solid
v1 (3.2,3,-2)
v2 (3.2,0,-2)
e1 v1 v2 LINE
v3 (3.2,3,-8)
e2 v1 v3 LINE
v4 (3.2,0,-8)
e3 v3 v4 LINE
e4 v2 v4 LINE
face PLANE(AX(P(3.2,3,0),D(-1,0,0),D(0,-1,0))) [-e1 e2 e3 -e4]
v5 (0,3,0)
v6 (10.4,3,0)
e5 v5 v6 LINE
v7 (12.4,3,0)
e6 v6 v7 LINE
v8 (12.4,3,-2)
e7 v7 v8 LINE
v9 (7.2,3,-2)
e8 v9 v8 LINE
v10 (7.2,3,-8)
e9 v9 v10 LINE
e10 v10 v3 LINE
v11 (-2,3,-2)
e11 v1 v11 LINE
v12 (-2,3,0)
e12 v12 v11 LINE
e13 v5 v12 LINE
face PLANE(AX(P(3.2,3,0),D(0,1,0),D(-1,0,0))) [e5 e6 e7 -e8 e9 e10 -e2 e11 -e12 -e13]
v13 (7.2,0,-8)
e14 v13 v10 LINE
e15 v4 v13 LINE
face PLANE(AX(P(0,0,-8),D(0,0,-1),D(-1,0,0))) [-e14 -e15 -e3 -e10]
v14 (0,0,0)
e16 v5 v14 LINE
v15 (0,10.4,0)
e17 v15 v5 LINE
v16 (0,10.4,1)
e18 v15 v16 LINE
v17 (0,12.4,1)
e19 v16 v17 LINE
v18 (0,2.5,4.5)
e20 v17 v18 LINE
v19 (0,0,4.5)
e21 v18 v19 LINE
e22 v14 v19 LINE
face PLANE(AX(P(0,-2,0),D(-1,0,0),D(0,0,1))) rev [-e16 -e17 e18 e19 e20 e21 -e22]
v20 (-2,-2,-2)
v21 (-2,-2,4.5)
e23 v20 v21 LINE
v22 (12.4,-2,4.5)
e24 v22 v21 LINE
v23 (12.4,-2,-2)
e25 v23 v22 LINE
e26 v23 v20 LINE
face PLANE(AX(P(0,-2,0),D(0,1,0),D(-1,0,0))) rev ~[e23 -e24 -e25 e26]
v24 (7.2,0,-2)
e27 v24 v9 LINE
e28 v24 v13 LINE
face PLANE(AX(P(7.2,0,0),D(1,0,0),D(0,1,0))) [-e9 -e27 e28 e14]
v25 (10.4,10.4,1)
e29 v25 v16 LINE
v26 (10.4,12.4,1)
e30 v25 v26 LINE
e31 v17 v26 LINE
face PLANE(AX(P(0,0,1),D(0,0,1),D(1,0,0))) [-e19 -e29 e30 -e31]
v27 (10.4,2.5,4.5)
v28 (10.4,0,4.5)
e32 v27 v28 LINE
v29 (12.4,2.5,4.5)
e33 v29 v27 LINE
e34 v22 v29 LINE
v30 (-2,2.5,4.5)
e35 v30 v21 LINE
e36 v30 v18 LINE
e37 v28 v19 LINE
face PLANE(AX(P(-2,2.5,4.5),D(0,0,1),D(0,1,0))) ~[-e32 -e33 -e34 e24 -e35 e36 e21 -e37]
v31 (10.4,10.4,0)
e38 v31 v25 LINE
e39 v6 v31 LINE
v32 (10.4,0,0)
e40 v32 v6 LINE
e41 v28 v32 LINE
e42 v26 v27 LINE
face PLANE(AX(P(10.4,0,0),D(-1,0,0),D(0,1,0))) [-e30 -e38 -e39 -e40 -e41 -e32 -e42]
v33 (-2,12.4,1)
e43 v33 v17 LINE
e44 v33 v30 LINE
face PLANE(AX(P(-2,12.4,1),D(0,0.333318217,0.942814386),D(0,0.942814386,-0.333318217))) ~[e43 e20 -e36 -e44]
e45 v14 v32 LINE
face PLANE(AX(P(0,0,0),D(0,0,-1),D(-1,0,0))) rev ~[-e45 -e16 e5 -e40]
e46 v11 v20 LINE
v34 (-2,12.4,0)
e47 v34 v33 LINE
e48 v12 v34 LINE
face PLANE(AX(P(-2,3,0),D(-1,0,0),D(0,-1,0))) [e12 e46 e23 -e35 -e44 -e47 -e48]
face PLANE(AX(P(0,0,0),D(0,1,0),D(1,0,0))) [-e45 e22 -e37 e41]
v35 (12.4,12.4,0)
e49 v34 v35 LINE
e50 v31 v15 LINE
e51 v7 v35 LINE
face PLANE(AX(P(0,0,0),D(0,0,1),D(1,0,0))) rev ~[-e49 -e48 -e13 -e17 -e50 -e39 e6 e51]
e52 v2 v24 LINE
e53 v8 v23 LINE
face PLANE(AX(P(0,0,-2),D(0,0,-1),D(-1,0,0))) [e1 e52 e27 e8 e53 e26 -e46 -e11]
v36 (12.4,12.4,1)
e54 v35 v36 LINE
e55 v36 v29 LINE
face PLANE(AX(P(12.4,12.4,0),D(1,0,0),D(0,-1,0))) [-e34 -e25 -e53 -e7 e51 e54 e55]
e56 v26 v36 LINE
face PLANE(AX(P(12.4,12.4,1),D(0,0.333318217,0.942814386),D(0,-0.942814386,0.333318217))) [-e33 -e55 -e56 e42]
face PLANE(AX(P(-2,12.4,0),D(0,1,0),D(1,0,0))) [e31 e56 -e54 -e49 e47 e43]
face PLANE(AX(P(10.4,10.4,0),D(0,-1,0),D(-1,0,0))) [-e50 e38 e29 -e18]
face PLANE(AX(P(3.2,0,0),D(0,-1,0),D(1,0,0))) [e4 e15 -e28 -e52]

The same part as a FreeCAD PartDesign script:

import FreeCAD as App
import Part
import Sketcher
Q = App.Units.Quantity


def add_polygon(sketch, points):
    """Adds a closed chain of lines whose ends are joined by coincident constraints."""
    first, n = sketch.GeometryCount, len(points)
    for a, b in zip(points, points[1:] + points[:1]):
        sketch.addGeometry(Part.LineSegment(App.Vector(*a, 0), App.Vector(*b, 0)), False)
    for i in range(n):
        sketch.addConstraint(Sketcher.Constraint("Coincident", first + i, 2, first + (i + 1) % n, 1))

doc = App.newDocument("Part")
params = doc.addObject("Spreadsheet::Sheet", "Params")
for row, (alias, value) in enumerate([
    ("sketch1_width", "10.4 mm"),
    ("pad1_length", "1 mm"),
    ("sketch2_width", "4.5 mm"),
    ("sketch2_width2", "14.4 mm"),
    ("sketch2_height", "3.5 mm"),
    ("pad2_length", "2 mm"),
    ("sketch3_width", "14.4 mm"),
    ("sketch3_height", "4.5 mm"),
    ("pad3_length", "2 mm"),
    ("sketch4_width", "4 mm"),
    ("sketch4_height", "3 mm"),
    ("pad4_length", "8 mm"),
    ("sketch5_width", "4 mm"),
    ("sketch5_height", "3 mm"),
    ("sketch5_width2", "5.2 mm"),
    ("pad5_length", "2 mm"),
], start=1):
    params.set(f"A{row}", alias)
    params.set(f"B{row}", "=" + value)
    params.setAlias(f"B{row}", alias)

body = doc.addObject("PartDesign::Body", "Body")
body.AllowCompound = True

# Sketch on XY plane
sketch1 = body.newObject("Sketcher::SketchObject", "Sketch")
sketch1.AttachmentSupport = (doc.getObject("XY_Plane"), [""])
sketch1.MapMode = "FlatFace"
add_polygon(sketch1, [(12, 12), (-2, 12), (-2, -2), (12, -2)])  # lines 0-3
add_polygon(sketch1, [(10, 0), (0, 0), (0, 10), (10, 10)])  # lines 4-7
sketch1.addConstraint(Sketcher.Constraint("Horizontal", 0))
sketch1.addConstraint(Sketcher.Constraint("Vertical", 1))
sketch1.addConstraint(Sketcher.Constraint("Horizontal", 2))
sketch1.addConstraint(Sketcher.Constraint("Vertical", 3))
sketch1.addConstraint(Sketcher.Constraint("Horizontal", 4))
sketch1.addConstraint(Sketcher.Constraint("Vertical", 5))
sketch1.addConstraint(Sketcher.Constraint("Horizontal", 6))
sketch1.addConstraint(Sketcher.Constraint("Vertical", 7))
sketch1.addConstraint(Sketcher.Constraint("Coincident", 4, 2, -1, 1))
sketch1.addConstraint(Sketcher.Constraint("Equal", 2, 1))
sketch1.addConstraint(Sketcher.Constraint("Equal", 6, 5))
sketch1.addConstraint(Sketcher.Constraint("DistanceX", 4, 2, 4, 1, Q("10.4 mm")))
sketch1.addConstraint(Sketcher.Constraint("DistanceX", 0, 2, -1, 1, Q("2 mm")))
sketch1.addConstraint(Sketcher.Constraint("DistanceY", 1, 2, -1, 1, Q("2 mm")))
sketch1.addConstraint(Sketcher.Constraint("DistanceY", 5, 2, 0, 2, Q("2 mm")))
sketch1.setExpression("Constraints[19]", "Params.sketch1_width")
pad1 = body.newObject("PartDesign::Pad", "Pad")
pad1.Profile = sketch1
pad1.setExpression("Length", "Params.pad1_length")

# Sketch on YZ plane
sketch2 = body.newObject("Sketcher::SketchObject", "Sketch001")
sketch2.AttachmentSupport = (doc.getObject("YZ_Plane"), [""])
sketch2.MapMode = "FlatFace"
sketch2.AttachmentOffset = App.Placement(App.Vector(0, 0, 12.4), App.Rotation())
add_polygon(sketch2, [(-2, 1), (12.4, 1), (2.5, 4.5), (-2, 4.5)])  # lines 0-3
sketch2.addConstraint(Sketcher.Constraint("Horizontal", 0))
sketch2.addConstraint(Sketcher.Constraint("Horizontal", 2))
sketch2.addConstraint(Sketcher.Constraint("Vertical", 3))
sketch2.addConstraint(Sketcher.Constraint("DistanceX", 2, 2, 2, 1, Q("4.5 mm")))
sketch2.addConstraint(Sketcher.Constraint("DistanceY", -1, 1, 1, 2, Q("4.5 mm")))
sketch2.addConstraint(Sketcher.Constraint("DistanceX", 0, 1, 0, 2, Q("14.4 mm")))
sketch2.addConstraint(Sketcher.Constraint("DistanceY", 3, 2, 3, 1, Q("3.5 mm")))
sketch2.addConstraint(Sketcher.Constraint("DistanceX", 2, 2, -1, 1, Q("2 mm")))
sketch2.setExpression("Constraints[7]", "Params.sketch2_width")
sketch2.setExpression("Constraints[9]", "Params.sketch2_width2")
sketch2.setExpression("Constraints[10]", "Params.sketch2_height")
pad2 = body.newObject("PartDesign::Pad", "Pad001")
pad2.Profile = sketch2
pad2.setExpression("Length", "Params.pad2_length")
pad2.Reversed = True
doc.recompute()

datumplane = body.newObject("PartDesign::Plane", "DatumPlane")
datumplane.AttachmentSupport = (doc.getObject("YZ_Plane"), [""])
datumplane.MapMode = "FlatFace"
datumplane.AttachmentOffset = App.Placement(App.Vector(0, 0, 5.2), App.Rotation())
mirrored = body.newObject("PartDesign::Mirrored", "Mirrored")
mirrored.Originals = [pad2]
mirrored.MirrorPlane = (datumplane, [""])
body.Tip = mirrored

# Sketch on XZ plane
sketch3 = body.newObject("Sketcher::SketchObject", "Sketch002")
sketch3.AttachmentSupport = (doc.getObject("XZ_Plane"), [""])
sketch3.MapMode = "FlatFace"
sketch3.AttachmentOffset = App.Placement(App.Vector(0, 0, 2), App.Rotation())
add_polygon(sketch3, [(-2, 0), (12.4, 0), (12.4, 4.5), (-2, 4.5)])  # lines 0-3
sketch3.addConstraint(Sketcher.Constraint("Horizontal", 0))
sketch3.addConstraint(Sketcher.Constraint("Vertical", 1))
sketch3.addConstraint(Sketcher.Constraint("Horizontal", 2))
sketch3.addConstraint(Sketcher.Constraint("Vertical", 3))
sketch3.addConstraint(Sketcher.Constraint("PointOnObject", 0, 2, -1))
sketch3.addConstraint(Sketcher.Constraint("DistanceX", 0, 1, 0, 2, Q("14.4 mm")))
sketch3.addConstraint(Sketcher.Constraint("DistanceY", 1, 1, 1, 2, Q("4.5 mm")))
sketch3.addConstraint(Sketcher.Constraint("DistanceX", 2, 2, -1, 1, Q("2 mm")))
sketch3.setExpression("Constraints[9]", "Params.sketch3_width")
sketch3.setExpression("Constraints[10]", "Params.sketch3_height")
pad3 = body.newObject("PartDesign::Pad", "Pad002")
pad3.Profile = sketch3
pad3.setExpression("Length", "Params.pad3_length")
pad3.Reversed = True

# Sketch on XY plane
sketch4 = body.newObject("Sketcher::SketchObject", "Sketch003")
sketch4.AttachmentSupport = (doc.getObject("XY_Plane"), [""])
sketch4.MapMode = "FlatFace"
add_polygon(sketch4, [(3.2, 3), (7.2, 3), (7.2, 0), (3.2, 0)])  # lines 0-3
sketch4.addConstraint(Sketcher.Constraint("Horizontal", 0))
sketch4.addConstraint(Sketcher.Constraint("Vertical", 1))
sketch4.addConstraint(Sketcher.Constraint("Horizontal", 2))
sketch4.addConstraint(Sketcher.Constraint("Vertical", 3))
sketch4.addConstraint(Sketcher.Constraint("PointOnObject", 1, 2, -1))
sketch4.addConstraint(Sketcher.Constraint("DistanceX", 0, 1, 0, 2, Q("4 mm")))
sketch4.addConstraint(Sketcher.Constraint("DistanceY", 1, 2, 1, 1, Q("3 mm")))
sketch4.addConstraint(Sketcher.Constraint("DistanceX", -1, 1, 0, 2, Q("7.2 mm")))
sketch4.setExpression("Constraints[9]", "Params.sketch4_width")
sketch4.setExpression("Constraints[10]", "Params.sketch4_height")
pad4 = body.newObject("PartDesign::Pad", "Pad003")
pad4.Profile = sketch4
pad4.setExpression("Length", "Params.pad4_length")
pad4.Reversed = True

# Sketch on XY plane
sketch5 = body.newObject("Sketcher::SketchObject", "Sketch004")
sketch5.AttachmentSupport = (doc.getObject("XY_Plane"), [""])
sketch5.MapMode = "FlatFace"
add_polygon(sketch5, [(7.2, 0), (7.2, 3), (12.4, 3), (12.4, -2), (-2, -2), (-2, 3), (3.2, 3), (3.2, 0)])  # lines 0-7
sketch5.addConstraint(Sketcher.Constraint("Vertical", 0))
sketch5.addConstraint(Sketcher.Constraint("Horizontal", 1))
sketch5.addConstraint(Sketcher.Constraint("Vertical", 2))
sketch5.addConstraint(Sketcher.Constraint("Horizontal", 3))
sketch5.addConstraint(Sketcher.Constraint("Vertical", 4))
sketch5.addConstraint(Sketcher.Constraint("Horizontal", 5))
sketch5.addConstraint(Sketcher.Constraint("Vertical", 6))
sketch5.addConstraint(Sketcher.Constraint("Horizontal", 7))
sketch5.addConstraint(Sketcher.Constraint("PointOnObject", 6, 2, -1))
sketch5.addConstraint(Sketcher.Constraint("Horizontal", 1, 2, 4, 2))
sketch5.addConstraint(Sketcher.Constraint("Equal", 1, 5))
sketch5.addConstraint(Sketcher.Constraint("DistanceX", 7, 1, 7, 2, Q("4 mm")))
sketch5.addConstraint(Sketcher.Constraint("DistanceY", 0, 1, 0, 2, Q("3 mm")))
sketch5.addConstraint(Sketcher.Constraint("DistanceY", 2, 2, -1, 1, Q("2 mm")))
sketch5.addConstraint(Sketcher.Constraint("DistanceX", 3, 2, -1, 1, Q("2 mm")))
sketch5.addConstraint(Sketcher.Constraint("DistanceX", 1, 1, 1, 2, Q("5.2 mm")))
sketch5.setExpression("Constraints[19]", "Params.sketch5_width")
sketch5.setExpression("Constraints[20]", "Params.sketch5_height")
sketch5.setExpression("Constraints[23]", "Params.sketch5_width2")
pad5 = body.newObject("PartDesign::Pad", "Pad004")
pad5.Profile = sketch5
pad5.setExpression("Length", "Params.pad5_length")
pad5.Reversed = True

doc.recompute()
